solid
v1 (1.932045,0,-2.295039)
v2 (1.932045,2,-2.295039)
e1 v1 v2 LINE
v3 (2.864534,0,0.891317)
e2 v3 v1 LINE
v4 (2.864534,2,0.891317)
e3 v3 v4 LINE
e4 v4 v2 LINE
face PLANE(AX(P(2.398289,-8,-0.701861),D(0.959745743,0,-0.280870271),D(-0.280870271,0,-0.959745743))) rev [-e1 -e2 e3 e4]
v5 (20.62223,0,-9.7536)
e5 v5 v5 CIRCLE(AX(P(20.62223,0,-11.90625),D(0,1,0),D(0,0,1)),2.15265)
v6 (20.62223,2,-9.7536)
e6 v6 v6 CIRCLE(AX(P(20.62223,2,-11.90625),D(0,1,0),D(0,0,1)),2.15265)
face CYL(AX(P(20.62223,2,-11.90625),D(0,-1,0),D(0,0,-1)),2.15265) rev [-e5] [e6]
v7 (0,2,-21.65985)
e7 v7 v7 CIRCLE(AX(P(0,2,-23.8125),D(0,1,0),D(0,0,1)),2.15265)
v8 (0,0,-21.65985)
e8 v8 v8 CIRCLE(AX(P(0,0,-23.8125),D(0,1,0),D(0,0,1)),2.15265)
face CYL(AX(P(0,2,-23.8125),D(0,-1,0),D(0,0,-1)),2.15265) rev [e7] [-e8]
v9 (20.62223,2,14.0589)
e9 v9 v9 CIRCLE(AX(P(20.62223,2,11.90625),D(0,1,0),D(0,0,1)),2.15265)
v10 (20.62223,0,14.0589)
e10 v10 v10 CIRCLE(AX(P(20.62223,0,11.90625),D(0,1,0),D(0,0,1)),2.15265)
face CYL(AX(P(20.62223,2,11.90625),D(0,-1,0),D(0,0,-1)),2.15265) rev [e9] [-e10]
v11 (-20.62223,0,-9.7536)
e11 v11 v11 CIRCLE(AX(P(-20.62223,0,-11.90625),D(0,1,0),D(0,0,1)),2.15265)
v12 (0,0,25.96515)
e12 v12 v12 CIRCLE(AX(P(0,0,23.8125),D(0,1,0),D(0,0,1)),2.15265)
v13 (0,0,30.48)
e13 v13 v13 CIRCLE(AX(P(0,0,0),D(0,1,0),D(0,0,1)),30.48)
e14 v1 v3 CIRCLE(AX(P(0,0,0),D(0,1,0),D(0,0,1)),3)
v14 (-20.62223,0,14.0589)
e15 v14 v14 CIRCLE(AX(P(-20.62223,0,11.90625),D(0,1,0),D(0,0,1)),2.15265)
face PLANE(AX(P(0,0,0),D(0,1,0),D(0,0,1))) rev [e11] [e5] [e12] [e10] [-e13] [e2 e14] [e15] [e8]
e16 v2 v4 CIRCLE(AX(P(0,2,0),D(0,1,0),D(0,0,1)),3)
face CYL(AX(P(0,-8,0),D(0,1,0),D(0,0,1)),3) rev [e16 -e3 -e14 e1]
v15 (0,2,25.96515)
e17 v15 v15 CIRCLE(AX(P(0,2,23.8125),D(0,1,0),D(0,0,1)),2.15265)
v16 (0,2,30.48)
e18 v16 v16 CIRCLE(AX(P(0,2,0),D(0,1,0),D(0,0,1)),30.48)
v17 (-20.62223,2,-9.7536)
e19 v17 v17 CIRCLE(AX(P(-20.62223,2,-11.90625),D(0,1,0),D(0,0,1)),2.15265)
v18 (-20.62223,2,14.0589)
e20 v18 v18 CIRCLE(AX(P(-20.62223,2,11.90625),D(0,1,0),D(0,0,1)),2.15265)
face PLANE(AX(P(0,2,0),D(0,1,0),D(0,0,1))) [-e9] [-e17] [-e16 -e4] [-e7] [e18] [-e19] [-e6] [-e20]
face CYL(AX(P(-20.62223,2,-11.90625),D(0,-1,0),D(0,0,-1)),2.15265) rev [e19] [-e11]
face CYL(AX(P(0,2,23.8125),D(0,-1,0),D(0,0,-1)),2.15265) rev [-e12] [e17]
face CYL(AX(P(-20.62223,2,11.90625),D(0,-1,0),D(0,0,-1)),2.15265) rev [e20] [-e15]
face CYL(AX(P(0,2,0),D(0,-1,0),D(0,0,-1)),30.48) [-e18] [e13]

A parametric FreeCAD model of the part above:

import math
import FreeCAD as App
import Part
import Sketcher

V = App.Vector
Q = App.Units.Quantity

doc = App.newDocument("Part")
body = doc.addObject("PartDesign::Body", "Body")

# Sketch on XZ plane
sketch1 = doc.addObject("Sketcher::SketchObject", "Sketch")
body.addObject(sketch1)
sketch1.AttachmentSupport = (doc.XZ_Plane, [""])
sketch1.MapMode = "FlatFace"
sketch1.addGeometry([
    Part.Circle(V(0, 0, 0), V(0, 0, 1), 30.5),  # 0
    Part.Circle(V(-20.6, -11.9, 0), V(0, 0, 1), 2.2),  # 1
    Part.Circle(V(0, -23.8, 0), V(0, 0, 1), 2.2),  # 2
    Part.Circle(V(-20.6, 11.9, 0), V(0, 0, 1), 2.2),  # 3
    Part.Circle(V(20.6, -11.9, 0), V(0, 0, 1), 2.2),  # 4
    Part.Circle(V(0, 23.8, 0), V(0, 0, 1), 2.2),  # 5
    Part.Circle(V(20.6, 11.9, 0), V(0, 0, 1), 2.2),  # 6
], False)
sketch1.addConstraint([
    Sketcher.Constraint("Coincident", 0, 3, -1, 1),
    Sketcher.Constraint("Equal", 1, 2),
    Sketcher.Constraint("Equal", 2, 3),
    Sketcher.Constraint("Equal", 3, 4),
    Sketcher.Constraint("Equal", 4, 5),
    Sketcher.Constraint("Equal", 5, 6),
    Sketcher.Constraint("Symmetric", 3, 3, 4, 3, -1, 1),
    Sketcher.Constraint("Symmetric", 2, 3, 5, 3, -1, 1),
    Sketcher.Constraint("Symmetric", 1, 3, 6, 3, -1, 1),
    Sketcher.Constraint("Symmetric", 1, 3, 4, 3, -2),
    Sketcher.Constraint("PointOnObject", 2, 3, -2),
    Sketcher.Constraint("Diameter", 0, Q("60.96 mm")),
    Sketcher.Constraint("Diameter", 1, Q("4.3053 mm")),
    Sketcher.Constraint("DistanceY", 2, 3, 5, 3, Q("47.625 mm")),
    Sketcher.Constraint("DistanceY", 1, 3, 3, 3, Q("23.8125 mm")),
    Sketcher.Constraint("DistanceX", 1, 3, -1, 1, Q("20.62223 mm")),
])
pad1 = doc.addObject("PartDesign::Pad", "Pad")
body.addObject(pad1)
pad1.Profile = sketch1
pad1.Length = 2
pad1.Reversed = True

# Sketch on XZ plane
sketch2 = doc.addObject("Sketcher::SketchObject", "Sketch001")
body.addObject(sketch2)
sketch2.AttachmentSupport = (doc.XZ_Plane, [""])
sketch2.MapMode = "FlatFace"
sketch2.AttachmentOffset = App.Placement(V(0, 0, -2), App.Rotation())
sketch2.addGeometry([
    Part.ArcOfCircle(Part.Circle(V(0, 0, 0), V(0, 0, 1), 3), math.radians(17), math.radians(310)),
    Part.LineSegment(V(2.9, 0.9, 0), V(1.9, -2.3, 0)),
], False)
sketch2.addConstraint([
    Sketcher.Constraint("Coincident", 0, 1, 1, 1),
    Sketcher.Constraint("Coincident", 1, 2, 0, 2),
    Sketcher.Constraint("Coincident", 0, 3, -1, 1),
    Sketcher.Constraint("Radius", 0, Q("3 mm")),
    Sketcher.Constraint("Distance", 1, Q("3.32 mm")),
    Sketcher.Constraint("DistanceY", 1, 2, -1, 1, Q("2.295039 mm")),
])
pocket1 = doc.addObject("PartDesign::Pocket", "Pocket")
body.addObject(pocket1)
pocket1.Profile = sketch2
pocket1.Length = 10
pocket1.Reversed = True

doc.recompute()
